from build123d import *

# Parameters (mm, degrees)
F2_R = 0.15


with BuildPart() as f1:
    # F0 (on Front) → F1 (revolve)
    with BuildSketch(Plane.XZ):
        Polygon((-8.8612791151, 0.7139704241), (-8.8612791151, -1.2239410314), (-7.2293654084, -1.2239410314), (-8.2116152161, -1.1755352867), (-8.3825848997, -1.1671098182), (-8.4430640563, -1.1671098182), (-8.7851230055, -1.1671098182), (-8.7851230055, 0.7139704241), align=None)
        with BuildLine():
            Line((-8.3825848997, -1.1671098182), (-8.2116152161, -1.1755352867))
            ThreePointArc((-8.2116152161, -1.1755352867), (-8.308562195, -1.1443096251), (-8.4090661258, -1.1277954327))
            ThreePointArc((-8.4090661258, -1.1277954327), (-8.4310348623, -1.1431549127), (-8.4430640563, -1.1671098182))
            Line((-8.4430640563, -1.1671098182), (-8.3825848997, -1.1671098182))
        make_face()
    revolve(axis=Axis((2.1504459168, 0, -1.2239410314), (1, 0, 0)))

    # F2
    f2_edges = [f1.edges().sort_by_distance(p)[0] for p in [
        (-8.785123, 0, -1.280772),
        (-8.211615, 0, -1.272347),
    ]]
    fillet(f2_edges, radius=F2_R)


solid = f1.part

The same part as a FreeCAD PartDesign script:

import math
import FreeCAD as App
import Part
import Sketcher
Q = App.Units.Quantity


def edges_at(feature, points):
    """Names of the edges that pass closest to the given points."""
    edges = feature.Shape.Edges
    near = lambda p: min(range(len(edges)), key=lambda i: edges[i].distToShape(Part.Vertex(*p))[0])
    return sorted({f"Edge{near(p) + 1}" for p in points})

doc = App.newDocument("Part")
body = doc.addObject("PartDesign::Body", "Body")

# Sketch on XZ plane
sketch1 = doc.addObject("Sketcher::SketchObject", "Sketch")
body.addObject(sketch1)
sketch1.AttachmentSupport = (doc.XZ_Plane, [""])
sketch1.MapMode = "FlatFace"
sketch1.addGeometry(Part.LineSegment(App.Vector(-8.86, 0.71, 0), App.Vector(-8.86, -1.22, 0)), False)
sketch1.addGeometry(Part.LineSegment(App.Vector(-8.86, -1.22, 0), App.Vector(-7.23, -1.22, 0)), False)
sketch1.addGeometry(Part.LineSegment(App.Vector(-7.23, -1.22, 0), App.Vector(-8.21, -1.18, 0)), False)
sketch1.addGeometry(Part.ArcOfCircle(Part.Circle(App.Vector(-8.47, -1.81, 0), App.Vector(0, 0, 1), 0.69), math.radians(67.89), math.radians(84.93)), False)
sketch1.addGeometry(Part.ArcOfCircle(Part.Circle(App.Vector(-8.39, -1.18, 0), App.Vector(0, 0, 1), 0.05), math.radians(111), math.radians(168)), False)
sketch1.addGeometry(Part.LineSegment(App.Vector(-8.44, -1.17, 0), App.Vector(-8.79, -1.17, 0)), False)
sketch1.addGeometry(Part.LineSegment(App.Vector(-8.79, -1.17, 0), App.Vector(-8.79, 0.71, 0)), False)
sketch1.addGeometry(Part.LineSegment(App.Vector(-8.79, 0.71, 0), App.Vector(-8.86, 0.71, 0)), False)
sketch1.addGeometry(Part.LineSegment(App.Vector(-8.86, -1.22, 0), App.Vector(-7.23, -1.22, 0)), True)  # axis
sketch1.addConstraint(Sketcher.Constraint("Coincident", 0, 2, 1, 1))
sketch1.addConstraint(Sketcher.Constraint("Coincident", 1, 2, 2, 1))
sketch1.addConstraint(Sketcher.Constraint("Coincident", 2, 2, 3, 1))
sketch1.addConstraint(Sketcher.Constraint("Coincident", 3, 2, 4, 1))
sketch1.addConstraint(Sketcher.Constraint("Coincident", 4, 2, 5, 1))
sketch1.addConstraint(Sketcher.Constraint("Coincident", 5, 2, 6, 1))
sketch1.addConstraint(Sketcher.Constraint("Coincident", 6, 2, 7, 1))
sketch1.addConstraint(Sketcher.Constraint("Coincident", 7, 2, 0, 1))
sketch1.addConstraint(Sketcher.Constraint("Vertical", 0))
sketch1.addConstraint(Sketcher.Constraint("Horizontal", 1))
sketch1.addConstraint(Sketcher.Constraint("Horizontal", 5))
sketch1.addConstraint(Sketcher.Constraint("Vertical", 6))
sketch1.addConstraint(Sketcher.Constraint("Horizontal", 7))
sketch1.addConstraint(Sketcher.Constraint("Horizontal", 8))
sketch1.addConstraint(Sketcher.Constraint("Coincident", 8, 1, 0, 2))
sketch1.addConstraint(Sketcher.Constraint("Equal", 1, 8))
sketch1.addConstraint(Sketcher.Constraint("Radius", 3, Q("0.685399 mm")))
sketch1.addConstraint(Sketcher.Constraint("Radius", 4, Q("0.054681 mm")))
sketch1.addConstraint(Sketcher.Constraint("DistanceX", 5, 2, 5, 1, Q("0.342059 mm")))
sketch1.addConstraint(Sketcher.Constraint("DistanceY", 0, 2, 0, 1, Q("1.937911 mm")))
sketch1.addConstraint(Sketcher.Constraint("DistanceY", 6, 1, 6, 2, Q("1.88108 mm")))
sketch1.addConstraint(Sketcher.Constraint("DistanceX", 3, 2, 1, 2, Q("1.179701 mm")))
sketch1.addConstraint(Sketcher.Constraint("DistanceX", 4, 2, 8, 2, Q("1.213699 mm")))
sketch1.addConstraint(Sketcher.Constraint("Distance", 2, Q("0.983442 mm")))
sketch1.addConstraint(Sketcher.Constraint("DistanceX", 1, 1, 1, 2, Q("1.631914 mm")))
sketch1.addConstraint(Sketcher.Constraint("DistanceX", 0, 2, -1, 1, Q("8.861279 mm")))
sketch1.addConstraint(Sketcher.Constraint("DistanceY", 0, 2, -1, 1, Q("1.223941 mm")))
sketch1.addConstraint(Sketcher.Constraint("DistanceY", 3, 3, 4, 3, Q("0.63159 mm")))
sketch1.addConstraint(Sketcher.Constraint("DistanceY", 0, 2, 4, 3, Q("0.045019 mm")))
revolution = doc.addObject("PartDesign::Revolution", "Revolution")
body.addObject(revolution)
revolution.Profile = sketch1
revolution.ReferenceAxis = (sketch1, ["Axis0"])
revolution.Angle = 360
doc.recompute()

fillet = doc.addObject("PartDesign::Fillet", "Fillet")
body.addObject(fillet)
fillet.Base = (revolution, edges_at(revolution, [(-8.785, 0, -1.281), (-8.212, 0, -1.272)]))
fillet.Radius = 0.15

doc.recompute()
